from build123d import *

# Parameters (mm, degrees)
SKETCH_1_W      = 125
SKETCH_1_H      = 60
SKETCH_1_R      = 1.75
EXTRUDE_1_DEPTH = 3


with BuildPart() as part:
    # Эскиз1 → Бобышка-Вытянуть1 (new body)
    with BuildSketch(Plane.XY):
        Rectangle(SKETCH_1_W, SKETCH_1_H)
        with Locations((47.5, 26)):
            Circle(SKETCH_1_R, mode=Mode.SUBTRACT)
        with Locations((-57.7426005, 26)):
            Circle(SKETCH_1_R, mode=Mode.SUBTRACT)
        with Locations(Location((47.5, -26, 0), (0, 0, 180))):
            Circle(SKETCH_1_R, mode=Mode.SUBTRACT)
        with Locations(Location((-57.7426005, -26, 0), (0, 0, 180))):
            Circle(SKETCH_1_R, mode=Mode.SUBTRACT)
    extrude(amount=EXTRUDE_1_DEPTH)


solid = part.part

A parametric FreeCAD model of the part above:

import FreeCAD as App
import Part
import Sketcher
from FreeCAD import Vector

doc = App.newDocument("Part")
body = doc.addObject("PartDesign::Body", "Body")

# Sketch on XY plane
sketch1 = body.newObject("Sketcher::SketchObject", "Sketch")
sketch1.AttachmentSupport = (doc.getObject("XY_Plane"), [""])
sketch1.MapMode = "FlatFace"
sketch1.addGeometry(Part.LineSegment(Vector(-62.5, 30, 0), Vector(-62.5, -30, 0)), False)
sketch1.addGeometry(Part.LineSegment(Vector(-62.5, -30, 0), Vector(62.5, -30, 0)), False)
sketch1.addGeometry(Part.LineSegment(Vector(62.5, -30, 0), Vector(62.5, 30, 0)), False)
sketch1.addGeometry(Part.LineSegment(Vector(62.5, 30, 0), Vector(-62.5, 30, 0)), False)
sketch1.addGeometry(Part.Circle(Vector(-57.7, -26, 0), Vector(0, 0, 1), 1.8), False)
sketch1.addGeometry(Part.Circle(Vector(47.5, -26, 0), Vector(0, 0, 1), 1.8), False)
sketch1.addGeometry(Part.Circle(Vector(-57.7, 26, 0), Vector(0, 0, 1), 1.8), False)
sketch1.addGeometry(Part.Circle(Vector(47.5, 26, 0), Vector(0, 0, 1), 1.8), False)
sketch1.addConstraint(Sketcher.Constraint("Coincident", 0, 2, 1, 1))
sketch1.addConstraint(Sketcher.Constraint("Coincident", 1, 2, 2, 1))
sketch1.addConstraint(Sketcher.Constraint("Coincident", 2, 2, 3, 1))
sketch1.addConstraint(Sketcher.Constraint("Coincident", 3, 2, 0, 1))
sketch1.addConstraint(Sketcher.Constraint("Vertical", 0))
sketch1.addConstraint(Sketcher.Constraint("Horizontal", 1))
sketch1.addConstraint(Sketcher.Constraint("Vertical", 2))
sketch1.addConstraint(Sketcher.Constraint("Horizontal", 3))
sketch1.addConstraint(Sketcher.Constraint("Equal", 4, 5))
sketch1.addConstraint(Sketcher.Constraint("Equal", 5, 6))
sketch1.addConstraint(Sketcher.Constraint("Equal", 6, 7))
sketch1.addConstraint(Sketcher.Constraint("Symmetric", 0, 2, 2, 2, -1, 1))
sketch1.addConstraint(Sketcher.Constraint("Symmetric", 4, 3, 6, 3, -1))
sketch1.addConstraint(Sketcher.Constraint("Symmetric", 5, 3, 7, 3, -1))
sketch1.addConstraint(Sketcher.Constraint("Horizontal", 4, 3, 5, 3))
sketch1.addConstraint(Sketcher.Constraint("Diameter", 4, 3.5))
sketch1.addConstraint(Sketcher.Constraint("DistanceX", 1, 1, 1, 2, 125.0))
sketch1.addConstraint(Sketcher.Constraint("DistanceY", 0, 2, 0, 1, 60.0))
sketch1.addConstraint(Sketcher.Constraint("DistanceY", 4, 3, -1, 1, 26.0))
sketch1.addConstraint(Sketcher.Constraint("DistanceX", 0, 2, 5, 3, 110.0))
sketch1.addConstraint(Sketcher.Constraint("DistanceX", 4, 3, -1, 1, 57.742601))
pad1 = body.newObject("PartDesign::Pad", "Pad")
pad1.Profile = sketch1
pad1.Length = 3

doc.recompute()
